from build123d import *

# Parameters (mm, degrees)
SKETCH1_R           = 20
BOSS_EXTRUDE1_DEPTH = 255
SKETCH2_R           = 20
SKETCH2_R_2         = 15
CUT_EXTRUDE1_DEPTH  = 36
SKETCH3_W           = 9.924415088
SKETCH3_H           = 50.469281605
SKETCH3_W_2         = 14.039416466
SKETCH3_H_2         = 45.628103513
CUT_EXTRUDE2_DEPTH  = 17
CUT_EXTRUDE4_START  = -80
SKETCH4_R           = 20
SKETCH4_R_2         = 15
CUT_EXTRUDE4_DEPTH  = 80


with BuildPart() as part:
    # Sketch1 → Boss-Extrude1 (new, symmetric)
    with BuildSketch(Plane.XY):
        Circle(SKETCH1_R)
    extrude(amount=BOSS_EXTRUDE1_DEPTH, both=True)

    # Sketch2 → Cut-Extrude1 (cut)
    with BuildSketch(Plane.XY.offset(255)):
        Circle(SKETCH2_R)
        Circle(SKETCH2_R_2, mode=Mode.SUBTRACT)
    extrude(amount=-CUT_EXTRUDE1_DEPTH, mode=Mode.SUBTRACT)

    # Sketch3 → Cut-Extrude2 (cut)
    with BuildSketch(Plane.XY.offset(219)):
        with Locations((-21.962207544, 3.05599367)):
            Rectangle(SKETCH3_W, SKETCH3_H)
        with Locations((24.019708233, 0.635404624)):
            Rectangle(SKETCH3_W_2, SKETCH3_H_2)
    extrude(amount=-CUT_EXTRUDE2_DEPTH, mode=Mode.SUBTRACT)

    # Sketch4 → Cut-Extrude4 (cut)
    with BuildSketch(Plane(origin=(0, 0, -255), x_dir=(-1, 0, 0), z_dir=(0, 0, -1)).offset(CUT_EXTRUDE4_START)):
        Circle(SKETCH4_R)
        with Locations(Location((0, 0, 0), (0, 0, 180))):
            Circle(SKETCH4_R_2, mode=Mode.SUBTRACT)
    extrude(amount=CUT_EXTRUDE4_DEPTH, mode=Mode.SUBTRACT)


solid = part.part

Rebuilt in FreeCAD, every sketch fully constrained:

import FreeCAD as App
import Part
import Sketcher

V = App.Vector
Q = App.Units.Quantity


def add_polygon(sketch, points):
    """Adds a closed chain of lines whose ends are joined by coincident constraints."""
    first, n = sketch.GeometryCount, len(points)
    for a, b in zip(points, points[1:] + points[:1]):
        sketch.addGeometry(Part.LineSegment(App.Vector(*a, 0), App.Vector(*b, 0)), False)
    for i in range(n):
        sketch.addConstraint(Sketcher.Constraint("Coincident", first + i, 2, first + (i + 1) % n, 1))

doc = App.newDocument("Part")
body = doc.addObject("PartDesign::Body", "Body")

# Sketch on XY plane
sketch1 = body.newObject("Sketcher::SketchObject", "Sketch")
sketch1.AttachmentSupport = (doc.getObject("XY_Plane"), [""])
sketch1.MapMode = "FlatFace"
sketch1.addGeometry(Part.Circle(V(0, 0, 0), V(0, 0, 1), 20), False)
sketch1.addConstraint([
    Sketcher.Constraint("Coincident", 0, 3, -1, 1),
    Sketcher.Constraint("Diameter", 0, Q("40 mm")),
])
pad1 = body.newObject("PartDesign::Pad", "Pad")
pad1.Profile = sketch1
pad1.Length = 510
pad1.Midplane = True

# Sketch on XY plane
sketch2 = body.newObject("Sketcher::SketchObject", "Sketch001")
sketch2.AttachmentSupport = (doc.getObject("XY_Plane"), [""])
sketch2.MapMode = "FlatFace"
sketch2.AttachmentOffset = App.Placement(V(0, 0, 255), App.Rotation())
sketch2.addGeometry([
    Part.Circle(V(0, 0, 0), V(0, 0, 1), 20),
    Part.Circle(V(0, 0, 0), V(0, 0, 1), 15),
], False)
sketch2.addConstraint([
    Sketcher.Constraint("Coincident", 0, 3, -1, 1),
    Sketcher.Constraint("Coincident", 1, 3, -1, 1),
    Sketcher.Constraint("Diameter", 0, Q("40 mm")),
    Sketcher.Constraint("Diameter", 1, Q("30 mm")),
])
pocket1 = body.newObject("PartDesign::Pocket", "Pocket")
pocket1.Profile = sketch2
pocket1.Length = 36

# Sketch on XY plane
sketch3 = body.newObject("Sketcher::SketchObject", "Sketch002")
sketch3.AttachmentSupport = (doc.getObject("XY_Plane"), [""])
sketch3.MapMode = "FlatFace"
sketch3.AttachmentOffset = App.Placement(V(0, 0, 219), App.Rotation())
add_polygon(sketch3, [(-26.924415, 28.290634), (-26.924415, -22.178647), (-17, -22.178647), (-17, 28.290634)])  # lines 0-3
add_polygon(sketch3, [(17, 23.449456), (17, -22.178647), (31.039416, -22.178647), (31.039416, 23.449456)])  # lines 4-7
sketch3.addConstraint([
    Sketcher.Constraint("Vertical", 0),
    Sketcher.Constraint("Horizontal", 1),
    Sketcher.Constraint("Vertical", 2),
    Sketcher.Constraint("Horizontal", 3),
    Sketcher.Constraint("Vertical", 4),
    Sketcher.Constraint("Horizontal", 5),
    Sketcher.Constraint("Vertical", 6),
    Sketcher.Constraint("Horizontal", 7),
    Sketcher.Constraint("Symmetric", 1, 2, 4, 2, -2),
    Sketcher.Constraint("DistanceX", 1, 2, -1, 1, Q("17 mm")),
    Sketcher.Constraint("DistanceY", 0, 2, 0, 1, Q("50.469282 mm")),
    Sketcher.Constraint("DistanceX", 1, 1, 1, 2, Q("9.924415 mm")),
    Sketcher.Constraint("DistanceX", 5, 1, 5, 2, Q("14.039416 mm")),
    Sketcher.Constraint("DistanceY", 4, 2, 4, 1, Q("45.628104 mm")),
    Sketcher.Constraint("DistanceY", 0, 2, -1, 1, Q("22.178647 mm")),
])
pocket2 = body.newObject("PartDesign::Pocket", "Pocket001")
pocket2.Profile = sketch3
pocket2.Length = 17

# Sketch on XY plane
sketch4 = body.newObject("Sketcher::SketchObject", "Sketch003")
sketch4.AttachmentSupport = (doc.getObject("XY_Plane"), [""])
sketch4.MapMode = "FlatFace"
sketch4.AttachmentOffset = App.Placement(V(0, 0, -175), App.Rotation())
sketch4.addGeometry([
    Part.Circle(V(0, 0, 0), V(0, 0, 1), 20),
    Part.Circle(V(0, 0, 0), V(0, 0, 1), 15),
], False)
sketch4.addConstraint([
    Sketcher.Constraint("Coincident", 0, 3, -1, 1),
    Sketcher.Constraint("Coincident", 1, 3, -1, 1),
    Sketcher.Constraint("Diameter", 0, Q("40 mm")),
    Sketcher.Constraint("Diameter", 1, Q("30 mm")),
])
pocket3 = body.newObject("PartDesign::Pocket", "Pocket002")
pocket3.Profile = sketch4
pocket3.Length = 80

doc.recompute()
